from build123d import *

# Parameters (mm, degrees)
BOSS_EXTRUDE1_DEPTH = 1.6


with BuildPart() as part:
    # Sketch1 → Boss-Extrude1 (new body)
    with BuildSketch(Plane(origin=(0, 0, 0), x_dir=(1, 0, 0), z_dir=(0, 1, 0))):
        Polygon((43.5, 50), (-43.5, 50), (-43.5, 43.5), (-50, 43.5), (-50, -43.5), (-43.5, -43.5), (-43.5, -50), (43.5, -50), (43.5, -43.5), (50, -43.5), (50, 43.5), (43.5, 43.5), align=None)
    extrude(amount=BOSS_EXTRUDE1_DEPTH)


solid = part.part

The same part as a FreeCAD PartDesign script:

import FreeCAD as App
import Part
import Sketcher
from FreeCAD import Vector

doc = App.newDocument("Part")
params = doc.addObject("Spreadsheet::Sheet", "Params")
for row, (alias, value) in enumerate([
    ("sketch1_width", "87 mm"),
    ("sketch1_width2", "6.5 mm"),
    ("pad1_length", "1.6 mm"),
], start=1):
    params.set(f"A{row}", alias)
    params.set(f"B{row}", "=" + value)
    params.setAlias(f"B{row}", alias)

body = doc.addObject("PartDesign::Body", "Body")

sketch1 = doc.addObject("Sketcher::SketchObject", "Sketch")
body.addObject(sketch1)
sketch1.AttachmentSupport = (doc.XZ_Plane, [""])
sketch1.MapMode = "FlatFace"
sketch1.addGeometry([
    Part.LineSegment(Vector(44, -50, 0), Vector(-44, -50, 0)),
    Part.LineSegment(Vector(-44, -50, 0), Vector(-44, -44, 0)),
    Part.LineSegment(Vector(-44, -44, 0), Vector(-50, -44, 0)),
    Part.LineSegment(Vector(-50, -44, 0), Vector(-50, 44, 0)),
    Part.LineSegment(Vector(-50, 44, 0), Vector(-44, 44, 0)),
    Part.LineSegment(Vector(-44, 44, 0), Vector(-44, 50, 0)),
    Part.LineSegment(Vector(-44, 50, 0), Vector(44, 50, 0)),
    Part.LineSegment(Vector(44, 50, 0), Vector(44, 44, 0)),
    Part.LineSegment(Vector(44, 44, 0), Vector(50, 44, 0)),
    Part.LineSegment(Vector(50, 44, 0), Vector(50, -44, 0)),
    Part.LineSegment(Vector(50, -44, 0), Vector(44, -44, 0)),
    Part.LineSegment(Vector(44, -44, 0), Vector(44, -50, 0)),
], False)
sketch1.addConstraint([
    Sketcher.Constraint("Coincident", 0, 2, 1, 1),
    Sketcher.Constraint("Coincident", 1, 2, 2, 1),
    Sketcher.Constraint("Coincident", 2, 2, 3, 1),
    Sketcher.Constraint("Coincident", 3, 2, 4, 1),
    Sketcher.Constraint("Coincident", 4, 2, 5, 1),
    Sketcher.Constraint("Coincident", 5, 2, 6, 1),
    Sketcher.Constraint("Coincident", 6, 2, 7, 1),
    Sketcher.Constraint("Coincident", 7, 2, 8, 1),
    Sketcher.Constraint("Coincident", 8, 2, 9, 1),
    Sketcher.Constraint("Coincident", 9, 2, 10, 1),
    Sketcher.Constraint("Coincident", 10, 2, 11, 1),
    Sketcher.Constraint("Coincident", 11, 2, 0, 1),
    Sketcher.Constraint("Horizontal", 0),
    Sketcher.Constraint("Vertical", 1),
    Sketcher.Constraint("Horizontal", 2),
    Sketcher.Constraint("Vertical", 3),
    Sketcher.Constraint("Horizontal", 4),
    Sketcher.Constraint("Vertical", 5),
    Sketcher.Constraint("Horizontal", 6),
    Sketcher.Constraint("Vertical", 7),
    Sketcher.Constraint("Horizontal", 8),
    Sketcher.Constraint("Vertical", 9),
    Sketcher.Constraint("Horizontal", 10),
    Sketcher.Constraint("Vertical", 11),
    Sketcher.Constraint("Symmetric", 0, 2, 6, 2, -1, 1),
    Sketcher.Constraint("Symmetric", 2, 2, 8, 2, -1, 1),
    Sketcher.Constraint("Symmetric", 4, 2, 10, 2, -1, 1),
    Sketcher.Constraint("Symmetric", 4, 2, 7, 2, -2),
    Sketcher.Constraint("Equal", 10, 1),
    Sketcher.Constraint("Equal", 6, 3),
    Sketcher.Constraint("DistanceX", 0, 2, 0, 1, 87.0),
    Sketcher.Constraint("DistanceX", 2, 2, 2, 1, 6.5),
])
sketch1.setExpression("Constraints[30]", "Params.sketch1_width")
sketch1.setExpression("Constraints[31]", "Params.sketch1_width2")
pad1 = doc.addObject("PartDesign::Pad", "Pad")
body.addObject(pad1)
pad1.Profile = sketch1
pad1.setExpression("Length", "Params.pad1_length")
pad1.Reversed = True

doc.recompute()
